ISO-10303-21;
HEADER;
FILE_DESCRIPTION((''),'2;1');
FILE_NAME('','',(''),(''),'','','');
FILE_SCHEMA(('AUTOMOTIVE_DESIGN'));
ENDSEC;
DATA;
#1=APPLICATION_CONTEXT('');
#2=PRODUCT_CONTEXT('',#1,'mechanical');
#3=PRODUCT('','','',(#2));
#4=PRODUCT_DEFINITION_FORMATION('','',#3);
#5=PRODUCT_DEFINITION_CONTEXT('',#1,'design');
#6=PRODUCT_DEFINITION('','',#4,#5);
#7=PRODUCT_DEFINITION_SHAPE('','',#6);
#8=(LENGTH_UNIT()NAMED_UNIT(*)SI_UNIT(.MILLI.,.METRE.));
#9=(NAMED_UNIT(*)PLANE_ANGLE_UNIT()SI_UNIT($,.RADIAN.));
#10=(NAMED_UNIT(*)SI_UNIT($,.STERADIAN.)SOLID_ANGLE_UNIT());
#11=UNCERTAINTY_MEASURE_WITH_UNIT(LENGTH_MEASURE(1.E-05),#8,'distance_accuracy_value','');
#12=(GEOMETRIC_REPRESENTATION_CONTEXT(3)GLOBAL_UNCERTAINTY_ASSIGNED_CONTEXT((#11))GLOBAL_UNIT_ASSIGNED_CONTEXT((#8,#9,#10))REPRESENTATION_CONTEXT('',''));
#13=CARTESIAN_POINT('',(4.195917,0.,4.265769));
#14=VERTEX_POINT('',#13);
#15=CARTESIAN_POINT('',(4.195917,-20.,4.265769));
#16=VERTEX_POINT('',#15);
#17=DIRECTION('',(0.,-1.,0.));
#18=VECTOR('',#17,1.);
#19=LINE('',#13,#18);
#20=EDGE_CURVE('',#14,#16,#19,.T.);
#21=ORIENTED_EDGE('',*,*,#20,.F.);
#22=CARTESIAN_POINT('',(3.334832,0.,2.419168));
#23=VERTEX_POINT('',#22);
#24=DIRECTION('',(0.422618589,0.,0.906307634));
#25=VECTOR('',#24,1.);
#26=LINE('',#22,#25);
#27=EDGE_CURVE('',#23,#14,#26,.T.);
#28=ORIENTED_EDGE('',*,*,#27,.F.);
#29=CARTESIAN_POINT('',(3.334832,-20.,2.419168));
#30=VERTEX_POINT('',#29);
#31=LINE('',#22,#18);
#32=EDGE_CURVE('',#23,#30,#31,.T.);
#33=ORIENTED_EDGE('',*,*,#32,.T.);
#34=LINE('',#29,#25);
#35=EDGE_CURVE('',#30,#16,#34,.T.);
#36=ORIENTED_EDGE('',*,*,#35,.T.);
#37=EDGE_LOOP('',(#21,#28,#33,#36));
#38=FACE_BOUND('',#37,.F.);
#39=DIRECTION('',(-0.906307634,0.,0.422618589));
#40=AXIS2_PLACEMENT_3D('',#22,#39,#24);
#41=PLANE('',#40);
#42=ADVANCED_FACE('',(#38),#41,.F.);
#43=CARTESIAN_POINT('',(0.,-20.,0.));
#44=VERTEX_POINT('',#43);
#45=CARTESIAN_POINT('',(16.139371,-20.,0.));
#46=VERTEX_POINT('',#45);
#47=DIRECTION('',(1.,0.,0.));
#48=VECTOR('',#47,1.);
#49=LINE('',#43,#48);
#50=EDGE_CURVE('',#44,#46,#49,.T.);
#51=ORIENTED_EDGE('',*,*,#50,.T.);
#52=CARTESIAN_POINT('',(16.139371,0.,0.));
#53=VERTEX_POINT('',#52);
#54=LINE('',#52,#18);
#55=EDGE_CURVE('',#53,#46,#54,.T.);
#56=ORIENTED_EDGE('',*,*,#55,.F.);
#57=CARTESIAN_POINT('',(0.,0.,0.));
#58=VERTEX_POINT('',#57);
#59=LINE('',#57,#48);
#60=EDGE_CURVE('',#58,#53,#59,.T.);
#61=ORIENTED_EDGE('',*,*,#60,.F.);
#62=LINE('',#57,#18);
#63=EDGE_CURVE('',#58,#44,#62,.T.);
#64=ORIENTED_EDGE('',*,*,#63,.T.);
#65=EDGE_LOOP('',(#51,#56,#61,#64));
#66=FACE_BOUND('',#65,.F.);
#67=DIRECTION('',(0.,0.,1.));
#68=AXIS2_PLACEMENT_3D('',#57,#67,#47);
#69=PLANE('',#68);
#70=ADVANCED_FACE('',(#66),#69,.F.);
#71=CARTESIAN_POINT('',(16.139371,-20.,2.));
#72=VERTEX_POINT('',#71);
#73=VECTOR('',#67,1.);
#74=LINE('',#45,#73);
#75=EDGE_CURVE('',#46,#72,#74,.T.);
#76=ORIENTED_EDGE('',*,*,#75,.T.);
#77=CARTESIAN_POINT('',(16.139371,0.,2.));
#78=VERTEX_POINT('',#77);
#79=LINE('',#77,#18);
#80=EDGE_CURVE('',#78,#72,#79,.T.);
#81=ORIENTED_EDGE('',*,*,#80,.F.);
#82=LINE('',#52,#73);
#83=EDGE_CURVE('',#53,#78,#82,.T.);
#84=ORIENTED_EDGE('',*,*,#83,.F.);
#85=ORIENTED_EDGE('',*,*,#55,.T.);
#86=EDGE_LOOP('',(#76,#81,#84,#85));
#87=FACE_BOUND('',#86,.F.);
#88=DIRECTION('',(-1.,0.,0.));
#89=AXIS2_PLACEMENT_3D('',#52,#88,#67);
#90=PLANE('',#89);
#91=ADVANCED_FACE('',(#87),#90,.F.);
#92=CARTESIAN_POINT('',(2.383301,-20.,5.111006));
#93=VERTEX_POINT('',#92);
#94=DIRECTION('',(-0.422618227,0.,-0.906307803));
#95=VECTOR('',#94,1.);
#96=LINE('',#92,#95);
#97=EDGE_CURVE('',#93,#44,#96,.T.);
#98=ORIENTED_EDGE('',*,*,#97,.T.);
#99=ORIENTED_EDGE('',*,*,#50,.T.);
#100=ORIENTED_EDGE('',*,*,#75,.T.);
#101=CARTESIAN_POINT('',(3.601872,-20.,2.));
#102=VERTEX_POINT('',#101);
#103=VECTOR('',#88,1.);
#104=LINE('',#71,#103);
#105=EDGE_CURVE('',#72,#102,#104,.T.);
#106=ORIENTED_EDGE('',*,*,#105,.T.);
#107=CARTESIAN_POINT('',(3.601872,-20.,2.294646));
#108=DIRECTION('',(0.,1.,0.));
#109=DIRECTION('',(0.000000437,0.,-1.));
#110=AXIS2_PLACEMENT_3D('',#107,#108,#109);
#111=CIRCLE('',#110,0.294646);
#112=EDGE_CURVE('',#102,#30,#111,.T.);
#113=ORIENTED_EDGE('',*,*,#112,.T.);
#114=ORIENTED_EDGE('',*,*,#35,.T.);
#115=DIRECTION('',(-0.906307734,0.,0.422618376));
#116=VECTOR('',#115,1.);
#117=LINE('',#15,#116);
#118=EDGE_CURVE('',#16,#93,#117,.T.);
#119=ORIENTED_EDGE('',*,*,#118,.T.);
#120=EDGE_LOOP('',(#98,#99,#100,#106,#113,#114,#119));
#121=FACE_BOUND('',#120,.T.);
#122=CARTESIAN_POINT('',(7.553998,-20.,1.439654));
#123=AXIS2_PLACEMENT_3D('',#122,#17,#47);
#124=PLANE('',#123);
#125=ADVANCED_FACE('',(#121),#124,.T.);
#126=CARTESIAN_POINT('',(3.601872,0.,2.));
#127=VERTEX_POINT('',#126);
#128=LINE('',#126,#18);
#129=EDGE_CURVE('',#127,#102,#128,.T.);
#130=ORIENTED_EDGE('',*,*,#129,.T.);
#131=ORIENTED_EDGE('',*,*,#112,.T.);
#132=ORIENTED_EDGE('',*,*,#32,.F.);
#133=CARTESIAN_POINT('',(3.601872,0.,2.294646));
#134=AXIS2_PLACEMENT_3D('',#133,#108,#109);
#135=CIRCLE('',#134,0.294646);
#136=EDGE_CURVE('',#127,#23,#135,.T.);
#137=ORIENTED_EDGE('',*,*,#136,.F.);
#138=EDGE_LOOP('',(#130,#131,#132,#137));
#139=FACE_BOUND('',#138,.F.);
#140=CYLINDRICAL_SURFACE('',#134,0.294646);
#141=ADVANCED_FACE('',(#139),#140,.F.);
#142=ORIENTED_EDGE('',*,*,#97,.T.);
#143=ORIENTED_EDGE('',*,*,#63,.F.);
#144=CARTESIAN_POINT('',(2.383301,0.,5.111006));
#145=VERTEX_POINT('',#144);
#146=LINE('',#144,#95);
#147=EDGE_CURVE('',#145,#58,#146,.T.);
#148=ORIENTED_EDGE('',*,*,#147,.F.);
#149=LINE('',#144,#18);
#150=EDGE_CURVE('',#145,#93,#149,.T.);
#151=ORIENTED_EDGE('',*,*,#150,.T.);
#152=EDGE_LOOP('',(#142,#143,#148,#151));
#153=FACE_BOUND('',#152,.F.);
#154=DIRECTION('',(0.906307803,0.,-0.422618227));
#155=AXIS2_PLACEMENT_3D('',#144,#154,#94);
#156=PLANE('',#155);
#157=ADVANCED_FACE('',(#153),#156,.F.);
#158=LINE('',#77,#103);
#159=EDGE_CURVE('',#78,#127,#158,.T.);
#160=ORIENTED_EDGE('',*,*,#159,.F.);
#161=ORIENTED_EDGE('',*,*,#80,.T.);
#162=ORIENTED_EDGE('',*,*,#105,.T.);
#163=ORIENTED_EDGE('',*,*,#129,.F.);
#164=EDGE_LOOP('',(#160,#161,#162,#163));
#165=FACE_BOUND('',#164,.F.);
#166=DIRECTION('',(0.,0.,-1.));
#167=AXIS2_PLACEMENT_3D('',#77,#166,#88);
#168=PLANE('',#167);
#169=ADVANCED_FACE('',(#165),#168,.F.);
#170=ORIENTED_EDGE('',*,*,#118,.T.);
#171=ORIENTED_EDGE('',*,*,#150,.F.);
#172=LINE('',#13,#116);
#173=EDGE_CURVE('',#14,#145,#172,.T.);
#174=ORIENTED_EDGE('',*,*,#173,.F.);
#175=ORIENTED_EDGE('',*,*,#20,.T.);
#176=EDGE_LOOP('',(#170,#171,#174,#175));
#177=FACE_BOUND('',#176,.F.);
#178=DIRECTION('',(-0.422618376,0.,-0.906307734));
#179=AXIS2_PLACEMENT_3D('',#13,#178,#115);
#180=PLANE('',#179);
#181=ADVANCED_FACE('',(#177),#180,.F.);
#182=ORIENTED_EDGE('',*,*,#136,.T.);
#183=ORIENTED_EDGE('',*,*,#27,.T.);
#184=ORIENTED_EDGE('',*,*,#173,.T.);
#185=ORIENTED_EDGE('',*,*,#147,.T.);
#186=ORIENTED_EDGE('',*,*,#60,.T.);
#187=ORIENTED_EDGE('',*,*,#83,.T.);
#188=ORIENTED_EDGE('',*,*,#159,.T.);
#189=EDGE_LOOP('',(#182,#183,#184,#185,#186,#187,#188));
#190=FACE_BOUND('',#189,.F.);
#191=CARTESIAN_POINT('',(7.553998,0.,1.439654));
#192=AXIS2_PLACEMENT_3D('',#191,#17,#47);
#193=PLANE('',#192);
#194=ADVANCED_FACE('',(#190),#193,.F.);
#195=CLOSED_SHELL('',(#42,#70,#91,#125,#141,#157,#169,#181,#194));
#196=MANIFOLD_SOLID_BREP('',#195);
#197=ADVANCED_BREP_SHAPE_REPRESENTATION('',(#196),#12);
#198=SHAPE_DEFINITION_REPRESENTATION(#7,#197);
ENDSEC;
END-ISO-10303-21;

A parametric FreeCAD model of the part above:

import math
import FreeCAD as App
import Part
import Sketcher

V = App.Vector
Q = App.Units.Quantity

doc = App.newDocument("Part")
body = doc.addObject("PartDesign::Body", "Body")

sketch1 = body.newObject("Sketcher::SketchObject", "Sketch")
sketch1.AttachmentSupport = (doc.getObject("XZ_Plane"), [""])
sketch1.MapMode = "FlatFace"
sketch1.addGeometry([
    Part.LineSegment(V(2.38, 5.11, 0), V(0, 0, 0)),
    Part.LineSegment(V(0, 0, 0), V(16.14, 0, 0)),
    Part.LineSegment(V(16.14, 0, 0), V(16.14, 2, 0)),
    Part.LineSegment(V(16.14, 2, 0), V(3.6, 2, 0)),
    Part.ArcOfCircle(Part.Circle(V(3.6, 2.29, 0), V(0, 0, 1), 0.29), math.radians(155), math.radians(270)),
    Part.LineSegment(V(3.33, 2.42, 0), V(4.2, 4.27, 0)),
    Part.LineSegment(V(4.2, 4.27, 0), V(2.38, 5.11, 0)),
], False)
sketch1.addConstraint([
    Sketcher.Constraint("Coincident", 0, 2, 1, 1),
    Sketcher.Constraint("Coincident", 1, 2, 2, 1),
    Sketcher.Constraint("Coincident", 2, 2, 3, 1),
    Sketcher.Constraint("Tangent", 3, 2, 4, 2),
    Sketcher.Constraint("Tangent", 4, 1, 5, 1),
    Sketcher.Constraint("Coincident", 5, 2, 6, 1),
    Sketcher.Constraint("Coincident", 6, 2, 0, 1),
    Sketcher.Constraint("Horizontal", 1),
    Sketcher.Constraint("Vertical", 2),
    Sketcher.Constraint("Horizontal", 3),
    Sketcher.Constraint("Coincident", 0, 2, -1, 1),
    Sketcher.Constraint("Parallel", 0, 5),
    Sketcher.Constraint("Perpendicular", 5, 6),
    Sketcher.Constraint("DistanceY", 2, 1, 2, 2, 2.0),
    Sketcher.Constraint("Angle", 0, Q("-114.999998 deg")),
    Sketcher.Constraint("Distance", 6, 2.000001),
    Sketcher.Constraint("DistanceX", 3, 2, 3, 1, 12.537499),
    Sketcher.Constraint("Radius", 4, 0.294646),
    Sketcher.Constraint("Distance", 5, 2.037499),
])
pad1 = body.newObject("PartDesign::Pad", "Pad")
pad1.Profile = sketch1
pad1.Length = 20

doc.recompute()
